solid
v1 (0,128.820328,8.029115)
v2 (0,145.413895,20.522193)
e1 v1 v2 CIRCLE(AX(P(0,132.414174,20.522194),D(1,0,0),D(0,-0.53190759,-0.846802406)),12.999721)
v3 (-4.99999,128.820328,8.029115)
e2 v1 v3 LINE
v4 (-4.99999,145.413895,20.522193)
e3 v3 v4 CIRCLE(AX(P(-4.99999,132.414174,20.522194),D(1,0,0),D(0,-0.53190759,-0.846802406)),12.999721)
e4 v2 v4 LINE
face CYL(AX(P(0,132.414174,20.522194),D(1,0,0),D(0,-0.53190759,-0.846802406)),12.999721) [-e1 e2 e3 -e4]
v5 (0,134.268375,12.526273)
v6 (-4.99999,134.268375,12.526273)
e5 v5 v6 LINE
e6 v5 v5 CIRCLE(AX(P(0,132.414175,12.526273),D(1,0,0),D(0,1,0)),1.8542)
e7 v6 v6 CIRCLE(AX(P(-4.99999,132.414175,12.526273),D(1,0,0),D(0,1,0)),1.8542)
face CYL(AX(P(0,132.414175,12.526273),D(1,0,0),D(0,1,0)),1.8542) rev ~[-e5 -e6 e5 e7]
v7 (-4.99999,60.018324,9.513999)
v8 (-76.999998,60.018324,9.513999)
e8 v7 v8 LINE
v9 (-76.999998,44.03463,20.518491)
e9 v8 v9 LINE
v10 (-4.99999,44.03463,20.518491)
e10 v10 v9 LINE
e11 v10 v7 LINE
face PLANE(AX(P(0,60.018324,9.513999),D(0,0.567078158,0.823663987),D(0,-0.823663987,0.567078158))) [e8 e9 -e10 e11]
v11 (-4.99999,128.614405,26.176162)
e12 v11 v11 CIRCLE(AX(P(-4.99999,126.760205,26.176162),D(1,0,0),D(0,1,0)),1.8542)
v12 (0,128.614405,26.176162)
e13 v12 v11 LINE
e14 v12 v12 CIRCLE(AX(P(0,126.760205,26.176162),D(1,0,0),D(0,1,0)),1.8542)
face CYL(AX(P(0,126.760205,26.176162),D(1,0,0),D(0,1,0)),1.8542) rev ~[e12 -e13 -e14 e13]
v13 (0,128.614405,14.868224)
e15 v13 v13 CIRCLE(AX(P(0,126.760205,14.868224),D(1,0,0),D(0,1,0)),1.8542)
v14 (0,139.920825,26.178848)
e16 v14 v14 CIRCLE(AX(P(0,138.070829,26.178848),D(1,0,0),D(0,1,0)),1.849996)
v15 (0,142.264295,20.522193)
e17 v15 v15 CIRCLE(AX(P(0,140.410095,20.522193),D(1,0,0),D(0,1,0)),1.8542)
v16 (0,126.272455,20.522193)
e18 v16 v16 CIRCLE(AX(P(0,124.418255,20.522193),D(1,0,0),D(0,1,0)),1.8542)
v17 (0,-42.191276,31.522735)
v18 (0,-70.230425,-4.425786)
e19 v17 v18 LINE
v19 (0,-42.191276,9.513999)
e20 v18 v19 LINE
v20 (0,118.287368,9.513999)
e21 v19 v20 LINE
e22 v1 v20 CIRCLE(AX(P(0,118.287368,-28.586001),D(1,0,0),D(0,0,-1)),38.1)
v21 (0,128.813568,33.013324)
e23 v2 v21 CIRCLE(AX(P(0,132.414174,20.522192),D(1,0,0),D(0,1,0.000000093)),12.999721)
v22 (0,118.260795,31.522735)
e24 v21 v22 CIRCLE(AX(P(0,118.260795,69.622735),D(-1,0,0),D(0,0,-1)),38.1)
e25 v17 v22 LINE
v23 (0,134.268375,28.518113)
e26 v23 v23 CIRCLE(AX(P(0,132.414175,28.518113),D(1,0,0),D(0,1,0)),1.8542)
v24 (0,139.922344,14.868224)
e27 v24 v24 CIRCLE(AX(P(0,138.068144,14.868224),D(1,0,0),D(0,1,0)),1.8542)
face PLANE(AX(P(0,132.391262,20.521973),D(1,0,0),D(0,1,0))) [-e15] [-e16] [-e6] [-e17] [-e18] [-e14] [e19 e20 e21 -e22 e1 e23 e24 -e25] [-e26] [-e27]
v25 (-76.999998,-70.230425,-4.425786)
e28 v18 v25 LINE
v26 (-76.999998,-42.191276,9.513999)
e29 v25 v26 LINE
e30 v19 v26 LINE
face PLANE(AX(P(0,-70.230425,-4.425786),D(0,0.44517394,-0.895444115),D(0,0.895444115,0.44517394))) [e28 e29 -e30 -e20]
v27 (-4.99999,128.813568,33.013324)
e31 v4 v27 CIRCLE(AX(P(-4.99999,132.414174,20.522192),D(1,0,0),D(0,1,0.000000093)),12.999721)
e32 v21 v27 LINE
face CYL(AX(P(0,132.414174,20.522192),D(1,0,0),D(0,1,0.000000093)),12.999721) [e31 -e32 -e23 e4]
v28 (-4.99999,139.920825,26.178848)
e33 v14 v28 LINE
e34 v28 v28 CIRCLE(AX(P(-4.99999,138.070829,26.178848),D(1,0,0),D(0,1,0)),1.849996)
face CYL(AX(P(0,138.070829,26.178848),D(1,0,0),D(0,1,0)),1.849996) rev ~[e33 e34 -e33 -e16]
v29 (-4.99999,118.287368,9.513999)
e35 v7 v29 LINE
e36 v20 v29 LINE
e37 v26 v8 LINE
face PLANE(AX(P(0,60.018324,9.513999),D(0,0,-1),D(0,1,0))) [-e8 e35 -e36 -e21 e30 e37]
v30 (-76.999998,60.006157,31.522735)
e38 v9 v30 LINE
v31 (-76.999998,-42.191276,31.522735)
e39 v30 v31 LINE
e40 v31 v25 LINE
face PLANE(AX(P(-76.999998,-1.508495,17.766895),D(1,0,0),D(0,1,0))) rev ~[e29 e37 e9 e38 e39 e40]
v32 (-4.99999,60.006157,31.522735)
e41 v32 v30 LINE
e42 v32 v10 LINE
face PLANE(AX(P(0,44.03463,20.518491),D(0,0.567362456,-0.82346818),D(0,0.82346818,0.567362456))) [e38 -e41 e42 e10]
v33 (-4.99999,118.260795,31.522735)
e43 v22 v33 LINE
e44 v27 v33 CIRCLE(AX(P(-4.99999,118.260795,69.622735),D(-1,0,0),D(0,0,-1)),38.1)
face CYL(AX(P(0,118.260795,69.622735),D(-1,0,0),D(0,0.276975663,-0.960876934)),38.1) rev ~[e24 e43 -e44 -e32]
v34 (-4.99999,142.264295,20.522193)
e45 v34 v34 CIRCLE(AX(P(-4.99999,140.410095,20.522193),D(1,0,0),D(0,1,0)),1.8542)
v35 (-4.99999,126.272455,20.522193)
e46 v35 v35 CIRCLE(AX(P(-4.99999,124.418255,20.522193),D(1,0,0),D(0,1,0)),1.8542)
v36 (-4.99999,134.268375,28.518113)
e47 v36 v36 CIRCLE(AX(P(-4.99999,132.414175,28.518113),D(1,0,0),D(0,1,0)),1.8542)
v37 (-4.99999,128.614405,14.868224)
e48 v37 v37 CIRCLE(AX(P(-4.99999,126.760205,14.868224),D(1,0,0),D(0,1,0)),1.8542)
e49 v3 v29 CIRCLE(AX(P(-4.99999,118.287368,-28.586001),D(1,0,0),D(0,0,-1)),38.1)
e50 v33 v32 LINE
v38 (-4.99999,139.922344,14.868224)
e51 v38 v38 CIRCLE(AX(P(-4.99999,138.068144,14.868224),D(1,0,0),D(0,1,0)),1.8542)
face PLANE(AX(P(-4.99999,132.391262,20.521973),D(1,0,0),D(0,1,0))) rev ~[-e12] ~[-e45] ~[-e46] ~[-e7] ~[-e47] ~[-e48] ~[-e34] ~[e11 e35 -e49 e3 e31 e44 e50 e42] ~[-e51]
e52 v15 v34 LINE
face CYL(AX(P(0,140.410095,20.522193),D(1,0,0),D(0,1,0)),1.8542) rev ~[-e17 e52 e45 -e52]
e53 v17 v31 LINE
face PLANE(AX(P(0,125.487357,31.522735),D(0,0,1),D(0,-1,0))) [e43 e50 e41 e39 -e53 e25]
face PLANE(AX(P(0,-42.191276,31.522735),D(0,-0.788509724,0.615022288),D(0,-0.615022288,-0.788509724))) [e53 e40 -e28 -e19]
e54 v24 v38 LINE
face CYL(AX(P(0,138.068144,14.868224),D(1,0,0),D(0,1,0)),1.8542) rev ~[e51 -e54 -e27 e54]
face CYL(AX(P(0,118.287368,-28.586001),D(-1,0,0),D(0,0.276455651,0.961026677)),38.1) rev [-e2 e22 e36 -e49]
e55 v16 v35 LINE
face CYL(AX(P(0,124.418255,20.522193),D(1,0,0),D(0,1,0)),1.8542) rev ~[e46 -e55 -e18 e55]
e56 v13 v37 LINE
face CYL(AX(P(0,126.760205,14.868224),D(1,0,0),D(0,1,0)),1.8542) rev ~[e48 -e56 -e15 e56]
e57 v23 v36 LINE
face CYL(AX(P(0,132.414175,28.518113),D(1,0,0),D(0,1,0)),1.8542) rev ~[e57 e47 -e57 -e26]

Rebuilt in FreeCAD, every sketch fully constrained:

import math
import FreeCAD as App
import Part
import Sketcher
Q = App.Units.Quantity


def edges_at(feature, points):
    """Names of the edges that pass closest to the given points."""
    edges = feature.Shape.Edges
    near = lambda p: min(range(len(edges)), key=lambda i: edges[i].distToShape(Part.Vertex(*p))[0])
    return sorted({f"Edge{near(p) + 1}" for p in points})


def add_polygon(sketch, points):
    """Adds a closed chain of lines whose ends are joined by coincident constraints."""
    first, n = sketch.GeometryCount, len(points)
    for a, b in zip(points, points[1:] + points[:1]):
        sketch.addGeometry(Part.LineSegment(App.Vector(*a, 0), App.Vector(*b, 0)), False)
    for i in range(n):
        sketch.addConstraint(Sketcher.Constraint("Coincident", first + i, 2, first + (i + 1) % n, 1))

doc = App.newDocument("Part")
body = doc.addObject("PartDesign::Body", "Body")

sketch1 = body.newObject("Sketcher::SketchObject", "Sketch")
sketch1.AttachmentSupport = (doc.getObject("YZ_Plane"), [""])
sketch1.MapMode = "FlatFace"
add_polygon(sketch1, [(60, 32), (-42, 32), (-70, -4), (-42, 10), (60, 10), (44, 21)])
sketch1.addConstraint([
    Sketcher.Constraint("Horizontal", 0),
    Sketcher.Constraint("Horizontal", 3),
    Sketcher.Constraint("Vertical", 0, 2, 2, 2),
    Sketcher.Constraint("DistanceX", 3, 1, 3, 2, Q("4.024 in")),
    Sketcher.Constraint("Distance", 4, Q("0.764 in")),
    Sketcher.Constraint("Distance", 1, Q("1.7949 in")),
    Sketcher.Constraint("Distance", 2, Q("1.2328 in")),
    Sketcher.Constraint("Distance", 5, Q("0.7636 in")),
    Sketcher.Constraint("DistanceY", -1, 1, 2, 2, Q("9.513999 mm")),
    Sketcher.Constraint("DistanceX", 0, 2, 0, 1, Q("102.197433 mm")),
    Sketcher.Constraint("DistanceX", -1, 1, 4, 2, Q("44.03463 mm")),
    Sketcher.Constraint("DistanceY", -1, 1, 4, 2, Q("20.518491 mm")),
])
pad1 = body.newObject("PartDesign::Pad", "Pad")
pad1.Profile = sketch1
pad1.Length = 76.999998
pad1.Reversed = True

sketch2 = body.newObject("Sketcher::SketchObject", "Sketch001")
sketch2.AttachmentSupport = (doc.getObject("YZ_Plane"), [""])
sketch2.MapMode = "FlatFace"
sketch2.addGeometry([
    Part.ArcOfCircle(Part.Circle(App.Vector(132.4, 20.5, 0), App.Vector(0, 0, 1), 13), math.radians(0), math.radians(122)),
    Part.LineSegment(App.Vector(125.5, 31.5, 0), App.Vector(60, 31.5, 0)),
    Part.LineSegment(App.Vector(60, 31.5, 0), App.Vector(44, 20.5, 0)),
    Part.LineSegment(App.Vector(44, 20.5, 0), App.Vector(60, 9.5, 0)),
    Part.LineSegment(App.Vector(60, 9.5, 0), App.Vector(125.5, 9.5, 0)),
    Part.ArcOfCircle(Part.Circle(App.Vector(132.4, 20.5, 0), App.Vector(0, 0, 1), 13), math.radians(-122), math.radians(0)),
    Part.Circle(App.Vector(126.8, 14.9, 0), App.Vector(0, 0, 1), 1.9),
    Part.Circle(App.Vector(132.4, 12.5, 0), App.Vector(0, 0, 1), 1.9),
    Part.Circle(App.Vector(138.1, 14.9, 0), App.Vector(0, 0, 1), 1.9),
    Part.Circle(App.Vector(124.4, 20.5, 0), App.Vector(0, 0, 1), 1.9),
    Part.Circle(App.Vector(126.8, 26.2, 0), App.Vector(0, 0, 1), 1.9),
    Part.Circle(App.Vector(140.4, 20.5, 0), App.Vector(0, 0, 1), 1.9),
    Part.Circle(App.Vector(132.4, 28.5, 0), App.Vector(0, 0, 1), 1.9),
    Part.Circle(App.Vector(138.1, 26.2, 0), App.Vector(0, 0, 1), 1.8),
], False)
sketch2.addConstraint([
    Sketcher.Constraint("Coincident", 0, 2, 1, 1),
    Sketcher.Constraint("Coincident", 1, 2, 2, 1),
    Sketcher.Constraint("Coincident", 2, 2, 3, 1),
    Sketcher.Constraint("Coincident", 3, 2, 4, 1),
    Sketcher.Constraint("Coincident", 4, 2, 5, 1),
    Sketcher.Constraint("Tangent", 5, 2, 0, 1),
    Sketcher.Constraint("Horizontal", 1),
    Sketcher.Constraint("Horizontal", 4),
    Sketcher.Constraint("Equal", 0, 5),
    Sketcher.Constraint("Equal", 6, 7),
    Sketcher.Constraint("Equal", 7, 8),
    Sketcher.Constraint("Equal", 8, 9),
    Sketcher.Constraint("Equal", 9, 10),
    Sketcher.Constraint("Equal", 10, 11),
    Sketcher.Constraint("Equal", 11, 12),
    Sketcher.Constraint("Horizontal", 6, 3, 8, 3),
    Sketcher.Constraint("Horizontal", 5, 3, 9, 3),
    Sketcher.Constraint("Horizontal", 9, 3, 11, 3),
    Sketcher.Constraint("Horizontal", 11, 3, 5, 2),
    Sketcher.Constraint("Vertical", 5, 3, 7, 3),
    Sketcher.Constraint("Vertical", 6, 3, 10, 3),
    Sketcher.Constraint("Vertical", 7, 3, 12, 3),
    Sketcher.Constraint("Equal", 1, 4),
    Sketcher.Constraint("Diameter", 6, Q("0.146 in")),
    Sketcher.Constraint("Radius", 0, Q("0.5118 in")),
    Sketcher.Constraint("DistanceX", 1, 2, 1, 1, Q("2.578 in")),
    Sketcher.Constraint("Distance", 3, Q("0.764 in")),
    Sketcher.Constraint("Diameter", 13, Q("3.699992 mm")),
    Sketcher.Constraint("DistanceX", 11, 3, 5, 2, Q("0.197 in")),
    Sketcher.Constraint("Distance", 2, Q("0.7636 in")),
    Sketcher.Constraint("DistanceY", 7, 3, 0, 3, Q("0.3148 in")),
    Sketcher.Constraint("DistanceX", 9, 3, 0, 3, Q("0.3148 in")),
    Sketcher.Constraint("DistanceY", 5, 3, 12, 3, Q("0.3148 in")),
    Sketcher.Constraint("DistanceY", 8, 3, 13, 3, Q("0.4453002 in")),
    Sketcher.Constraint("DistanceY", -1, 1, 3, 2, Q("9.513999 mm")),
    Sketcher.Constraint("DistanceX", 1, 2, 9, 3, Q("64.412098 mm")),
    Sketcher.Constraint("DistanceY", -1, 1, 0, 3, Q("20.522192 mm")),
    Sketcher.Constraint("DistanceX", -1, 1, 13, 3, Q("138.070829 mm")),
    Sketcher.Constraint("DistanceX", -1, 1, 2, 2, Q("44.03463 mm")),
    Sketcher.Constraint("DistanceX", 6, 3, 0, 3, Q("5.653969 mm")),
    Sketcher.Constraint("DistanceY", 6, 3, 5, 3, Q("5.65397 mm")),
    Sketcher.Constraint("DistanceX", 7, 3, 8, 3, Q("5.653969 mm")),
    Sketcher.Constraint("DistanceY", 9, 3, 10, 3, Q("5.653969 mm")),
])
pad2 = body.newObject("PartDesign::Pad", "Pad001")
pad2.Profile = sketch2
pad2.Length = 4.99999
pad2.Reversed = True
doc.recompute()

fillet = body.newObject("PartDesign::Fillet", "Fillet")
fillet.Base = (pad2, edges_at(pad2, [(-2.5, 125.487, 31.523)]))
fillet.Radius = Q("1.5 in")
doc.recompute()

fillet2 = body.newObject("PartDesign::Fillet", "Fillet001")
fillet2.Base = (fillet, edges_at(fillet, [(-2.5, 125.5, 9.514)]))
fillet2.Radius = Q("1.5 in")

doc.recompute()
